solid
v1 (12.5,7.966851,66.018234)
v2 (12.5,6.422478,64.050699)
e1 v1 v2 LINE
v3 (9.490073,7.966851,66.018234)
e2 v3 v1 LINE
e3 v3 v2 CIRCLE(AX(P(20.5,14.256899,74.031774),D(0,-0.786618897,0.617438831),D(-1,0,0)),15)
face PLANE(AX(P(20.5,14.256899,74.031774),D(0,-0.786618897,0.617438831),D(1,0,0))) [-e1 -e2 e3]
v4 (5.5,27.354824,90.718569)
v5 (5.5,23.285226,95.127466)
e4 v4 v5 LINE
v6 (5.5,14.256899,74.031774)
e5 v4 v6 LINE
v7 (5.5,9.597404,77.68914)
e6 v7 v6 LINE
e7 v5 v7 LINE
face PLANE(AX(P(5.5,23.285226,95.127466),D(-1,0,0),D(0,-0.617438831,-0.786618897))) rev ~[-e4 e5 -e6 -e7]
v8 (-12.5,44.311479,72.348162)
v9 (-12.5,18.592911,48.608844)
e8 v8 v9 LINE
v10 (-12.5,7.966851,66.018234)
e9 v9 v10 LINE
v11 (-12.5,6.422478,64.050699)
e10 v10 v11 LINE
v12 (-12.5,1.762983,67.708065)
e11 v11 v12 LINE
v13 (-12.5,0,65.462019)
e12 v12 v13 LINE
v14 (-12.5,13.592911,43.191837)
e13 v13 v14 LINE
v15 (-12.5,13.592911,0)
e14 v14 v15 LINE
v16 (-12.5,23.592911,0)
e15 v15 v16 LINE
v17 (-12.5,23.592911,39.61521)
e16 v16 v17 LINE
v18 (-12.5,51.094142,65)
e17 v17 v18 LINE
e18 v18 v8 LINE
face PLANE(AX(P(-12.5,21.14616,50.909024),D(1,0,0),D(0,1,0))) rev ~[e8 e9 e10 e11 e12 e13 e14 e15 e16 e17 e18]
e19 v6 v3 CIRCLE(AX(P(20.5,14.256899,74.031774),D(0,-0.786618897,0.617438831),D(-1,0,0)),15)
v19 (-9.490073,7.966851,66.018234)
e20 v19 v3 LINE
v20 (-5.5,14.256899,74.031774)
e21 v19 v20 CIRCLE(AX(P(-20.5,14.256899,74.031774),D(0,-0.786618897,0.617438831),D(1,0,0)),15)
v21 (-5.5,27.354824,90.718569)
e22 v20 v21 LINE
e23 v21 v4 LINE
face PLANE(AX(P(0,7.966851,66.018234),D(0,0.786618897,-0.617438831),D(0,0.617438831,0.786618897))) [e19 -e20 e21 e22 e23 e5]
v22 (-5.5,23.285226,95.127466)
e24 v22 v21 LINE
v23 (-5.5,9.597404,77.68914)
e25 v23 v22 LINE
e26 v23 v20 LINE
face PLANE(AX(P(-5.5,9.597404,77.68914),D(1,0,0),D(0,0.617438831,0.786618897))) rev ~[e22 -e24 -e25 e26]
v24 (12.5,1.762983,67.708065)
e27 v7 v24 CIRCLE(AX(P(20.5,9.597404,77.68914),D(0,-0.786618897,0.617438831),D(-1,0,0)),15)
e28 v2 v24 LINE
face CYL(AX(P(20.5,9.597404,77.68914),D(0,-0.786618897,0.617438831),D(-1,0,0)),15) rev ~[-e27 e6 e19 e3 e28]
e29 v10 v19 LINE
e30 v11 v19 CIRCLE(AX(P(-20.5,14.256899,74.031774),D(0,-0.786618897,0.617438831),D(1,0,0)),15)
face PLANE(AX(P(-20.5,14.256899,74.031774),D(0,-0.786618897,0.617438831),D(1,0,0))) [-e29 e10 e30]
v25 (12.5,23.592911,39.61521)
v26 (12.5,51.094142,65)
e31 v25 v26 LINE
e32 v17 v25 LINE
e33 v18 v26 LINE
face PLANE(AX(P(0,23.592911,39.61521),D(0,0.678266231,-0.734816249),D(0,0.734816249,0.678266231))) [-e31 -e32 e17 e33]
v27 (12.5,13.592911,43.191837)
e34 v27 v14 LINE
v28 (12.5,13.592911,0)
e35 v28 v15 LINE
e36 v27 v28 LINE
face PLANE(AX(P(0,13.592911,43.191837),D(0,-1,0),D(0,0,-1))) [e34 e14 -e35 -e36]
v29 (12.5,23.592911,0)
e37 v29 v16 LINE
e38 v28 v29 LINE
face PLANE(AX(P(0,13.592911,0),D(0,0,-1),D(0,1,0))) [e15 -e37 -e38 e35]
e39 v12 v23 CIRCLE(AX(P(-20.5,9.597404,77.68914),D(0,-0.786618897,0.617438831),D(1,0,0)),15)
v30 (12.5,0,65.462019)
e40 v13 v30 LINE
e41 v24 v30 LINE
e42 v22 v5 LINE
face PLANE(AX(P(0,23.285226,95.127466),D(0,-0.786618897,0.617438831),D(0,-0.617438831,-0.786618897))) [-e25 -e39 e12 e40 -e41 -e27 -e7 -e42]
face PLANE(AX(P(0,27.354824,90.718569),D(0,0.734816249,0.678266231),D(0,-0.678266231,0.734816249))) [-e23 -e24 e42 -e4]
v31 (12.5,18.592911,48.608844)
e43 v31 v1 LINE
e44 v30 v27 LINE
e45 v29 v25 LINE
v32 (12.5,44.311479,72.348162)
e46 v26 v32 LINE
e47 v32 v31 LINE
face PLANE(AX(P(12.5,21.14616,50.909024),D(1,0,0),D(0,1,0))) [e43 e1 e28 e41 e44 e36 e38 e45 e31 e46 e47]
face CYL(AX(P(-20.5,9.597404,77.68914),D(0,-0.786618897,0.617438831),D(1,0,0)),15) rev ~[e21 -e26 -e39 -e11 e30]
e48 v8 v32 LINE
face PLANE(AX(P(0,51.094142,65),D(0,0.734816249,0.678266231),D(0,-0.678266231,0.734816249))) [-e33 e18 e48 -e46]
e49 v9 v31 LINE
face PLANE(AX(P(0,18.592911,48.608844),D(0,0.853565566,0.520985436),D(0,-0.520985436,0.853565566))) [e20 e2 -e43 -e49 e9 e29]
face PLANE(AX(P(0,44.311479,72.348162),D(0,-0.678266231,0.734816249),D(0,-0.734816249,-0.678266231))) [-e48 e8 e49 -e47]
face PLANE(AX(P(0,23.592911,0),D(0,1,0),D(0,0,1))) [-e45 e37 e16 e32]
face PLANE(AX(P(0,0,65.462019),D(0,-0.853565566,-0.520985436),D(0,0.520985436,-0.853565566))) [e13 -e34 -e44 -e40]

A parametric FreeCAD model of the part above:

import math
import FreeCAD as App
import Part
import Sketcher

V = App.Vector


def add_polygon(sketch, points):
    """Adds a closed chain of lines whose ends are joined by coincident constraints."""
    first, n = sketch.GeometryCount, len(points)
    for a, b in zip(points, points[1:] + points[:1]):
        sketch.addGeometry(Part.LineSegment(App.Vector(*a, 0), App.Vector(*b, 0)), False)
    for i in range(n):
        sketch.addConstraint(Sketcher.Constraint("Coincident", first + i, 2, first + (i + 1) % n, 1))

doc = App.newDocument("Part")
body = doc.addObject("PartDesign::Body", "Body")

# Sketch on YZ plane
sketch1 = body.newObject("Sketcher::SketchObject", "Sketch")
sketch1.AttachmentSupport = (doc.getObject("YZ_Plane"), [""])
sketch1.MapMode = "FlatFace"
add_polygon(sketch1, [(24, 0), (24, 40), (51, 65), (44, 72), (19, 49), (8, 66), (27, 91), (23, 95), (0, 65), (14, 43), (14, 0)])  # lines 0-10
sketch1.addConstraint([
    Sketcher.Constraint("Vertical", 0),
    Sketcher.Constraint("Vertical", 9),
    Sketcher.Constraint("Horizontal", 10),
    Sketcher.Constraint("PointOnObject", 7, 2, -2),
    Sketcher.Constraint("PointOnObject", 9, 2, -1),
    Sketcher.Constraint("Perpendicular", 1, 2),
    Sketcher.Constraint("Perpendicular", 2, 3),
    Sketcher.Constraint("Perpendicular", 3, 6),
    Sketcher.Constraint("Parallel", 5, 7),
    Sketcher.Constraint("Parallel", 4, 8),
    Sketcher.Constraint("DistanceX", 10, 1, 10, 2, 10.0),
    Sketcher.Constraint("Distance", 2, 10.0),
    Sketcher.Constraint("Distance", 3, 35.0),
    Sketcher.Constraint("Distance", 6, 6.0),
    Sketcher.Constraint("DistanceY", -1, 1, 1, 2, 65.0),
    Sketcher.Constraint("DistanceX", 3, 2, 0, 2, 5.0),
    Sketcher.Constraint("DistanceY", 0, 1, 0, 2, 39.61521),
    Sketcher.Constraint("Distance", 4, 20.396078),
    Sketcher.Constraint("Distance", 8, 26.090769),
    Sketcher.Constraint("DistanceY", 9, 2, 9, 1, 43.191837),
    Sketcher.Constraint("DistanceX", -1, 1, 0, 2, 23.592911),
    Sketcher.Constraint("DistanceY", -1, 1, 5, 2, 90.718569),
])
pad1 = body.newObject("PartDesign::Pad", "Pad")
pad1.Profile = sketch1
pad1.Length = 25
pad1.Midplane = True

# Sketch on an angled plane
sketch2 = body.newObject("Sketcher::SketchObject", "Sketch001")
sketch2.Placement = App.Placement(V(0, -31.794186, 24.956132), App.Rotation(V(1, 0, 0), V(0, 0.617438831, 0.786618897), V(0, -0.786618897, 0.617438831), "ZXY"))
sketch2.addGeometry([
    Part.ArcOfCircle(Part.Circle(V(-20, 67, 0), V(0, 0, 1), 15), math.radians(58), math.radians(360)),  # 0
    Part.LineSegment(V(-6, 67, 0), V(-6, 89, 0)),  # 1
    Part.LineSegment(V(-6, 89, 0), V(-12, 89, 0)),  # 2
    Part.LineSegment(V(-12, 89, 0), V(-12, 80, 0)),  # 3
    Part.ArcOfCircle(Part.Circle(V(20, 67, 0), V(0, 0, 1), 15), math.radians(180), math.radians(482)),  # 4
    Part.LineSegment(V(12, 80, 0), V(12, 89, 0)),  # 5
    Part.LineSegment(V(12, 89, 0), V(6, 89, 0)),  # 6
    Part.LineSegment(V(6, 89, 0), V(6, 67, 0)),  # 7
], False)
sketch2.addConstraint([
    Sketcher.Constraint("Tangent", 0, 2, 1, 1),
    Sketcher.Constraint("Coincident", 1, 2, 2, 1),
    Sketcher.Constraint("Coincident", 2, 2, 3, 1),
    Sketcher.Constraint("Coincident", 3, 2, 0, 1),
    Sketcher.Constraint("Coincident", 4, 2, 5, 1),
    Sketcher.Constraint("Coincident", 5, 2, 6, 1),
    Sketcher.Constraint("Coincident", 6, 2, 7, 1),
    Sketcher.Constraint("Tangent", 7, 2, 4, 1),
    Sketcher.Constraint("Vertical", 1),
    Sketcher.Constraint("Horizontal", 2),
    Sketcher.Constraint("Vertical", 3),
    Sketcher.Constraint("Vertical", 5),
    Sketcher.Constraint("Horizontal", 6),
    Sketcher.Constraint("Vertical", 7),
    Sketcher.Constraint("Equal", 0, 4),
    Sketcher.Constraint("Symmetric", 0, 3, 4, 3, -2),
    Sketcher.Constraint("Symmetric", 2, 2, 5, 2, -2),
    Sketcher.Constraint("Radius", 0, 15.0),
    Sketcher.Constraint("DistanceX", 2, 2, 2, 1, 7.0),
    Sketcher.Constraint("DistanceX", 0, 3, 4, 3, 41.0),
    Sketcher.Constraint("DistanceY", 1, 1, 1, 2, 22.16871),
    Sketcher.Constraint("DistanceY", -1, 1, 0, 3, 67.037555),
])
pocket1 = body.newObject("PartDesign::Pocket", "Pocket")
pocket1.Profile = sketch2
pocket1.Length = 5.923447

doc.recompute()
